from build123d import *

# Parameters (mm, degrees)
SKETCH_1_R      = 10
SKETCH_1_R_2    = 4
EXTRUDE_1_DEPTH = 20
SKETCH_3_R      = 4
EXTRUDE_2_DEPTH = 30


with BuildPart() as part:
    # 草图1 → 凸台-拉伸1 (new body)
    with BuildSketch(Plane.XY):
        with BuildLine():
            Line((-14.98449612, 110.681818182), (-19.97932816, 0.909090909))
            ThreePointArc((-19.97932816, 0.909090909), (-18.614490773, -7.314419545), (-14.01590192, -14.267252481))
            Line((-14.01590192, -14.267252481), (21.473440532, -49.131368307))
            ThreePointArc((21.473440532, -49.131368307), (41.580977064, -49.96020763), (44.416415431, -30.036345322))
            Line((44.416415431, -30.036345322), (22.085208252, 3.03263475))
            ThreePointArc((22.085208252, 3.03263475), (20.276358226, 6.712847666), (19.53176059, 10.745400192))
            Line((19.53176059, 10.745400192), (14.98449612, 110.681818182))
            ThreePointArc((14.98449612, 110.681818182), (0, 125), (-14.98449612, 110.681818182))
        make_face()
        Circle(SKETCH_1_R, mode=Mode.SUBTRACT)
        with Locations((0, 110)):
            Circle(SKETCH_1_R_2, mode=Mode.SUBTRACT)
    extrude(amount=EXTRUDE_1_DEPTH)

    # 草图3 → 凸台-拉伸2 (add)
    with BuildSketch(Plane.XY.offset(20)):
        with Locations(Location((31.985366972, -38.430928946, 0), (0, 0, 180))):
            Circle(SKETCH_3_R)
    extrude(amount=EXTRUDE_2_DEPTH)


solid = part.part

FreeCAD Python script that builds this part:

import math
import FreeCAD as App
import Part
import Sketcher

doc = App.newDocument("Part")
body = doc.addObject("PartDesign::Body", "Body")

# Sketch on XY plane
sketch1 = doc.addObject("Sketcher::SketchObject", "Sketch")
body.addObject(sketch1)
sketch1.AttachmentSupport = (doc.XY_Plane, [""])
sketch1.MapMode = "FlatFace"
sketch1.addGeometry([
    Part.LineSegment(App.Vector(-15, 110.7, 0), App.Vector(-20, 0.9, 0)),  # 0
    Part.ArcOfCircle(Part.Circle(App.Vector(0, 0, 0), App.Vector(0, 0, 1), 20), math.radians(177), math.radians(226)),  # 1
    Part.LineSegment(App.Vector(-14, -14.3, 0), App.Vector(21.5, -49.1, 0)),  # 2
    Part.ArcOfCircle(Part.Circle(App.Vector(32, -38.4, 0), App.Vector(0, 0, 1), 15), math.radians(-134), math.radians(34)),  # 3
    Part.LineSegment(App.Vector(44.4, -30, 0), App.Vector(22.1, 3, 0)),  # 4
    Part.ArcOfCircle(Part.Circle(App.Vector(34.5, 11.4, 0), App.Vector(0, 0, 1), 15), math.radians(-177), math.radians(-146)),  # 5
    Part.LineSegment(App.Vector(19.5, 10.7, 0), App.Vector(15, 110.7, 0)),  # 6
    Part.ArcOfCircle(Part.Circle(App.Vector(0, 110, 0), App.Vector(0, 0, 1), 15), math.radians(3), math.radians(177)),  # 7
    Part.Circle(App.Vector(0, 0, 0), App.Vector(0, 0, 1), 10),  # 8
    Part.Circle(App.Vector(0, 110, 0), App.Vector(0, 0, 1), 4),  # 9
], False)
sketch1.addConstraint([
    Sketcher.Constraint("Tangent", 0, 2, 1, 1),
    Sketcher.Constraint("Tangent", 1, 2, 2, 1),
    Sketcher.Constraint("Tangent", 2, 2, 3, 1),
    Sketcher.Constraint("Tangent", 3, 2, 4, 1),
    Sketcher.Constraint("Tangent", 4, 2, 5, 2),
    Sketcher.Constraint("Tangent", 5, 1, 6, 1),
    Sketcher.Constraint("Tangent", 6, 2, 7, 1),
    Sketcher.Constraint("Tangent", 7, 2, 0, 1),
    Sketcher.Constraint("Coincident", 1, 3, -1, 1),
    Sketcher.Constraint("Coincident", 8, 3, -1, 1),
    Sketcher.Constraint("Coincident", 9, 3, 7, 3),
    Sketcher.Constraint("Equal", 3, 5),
    Sketcher.Constraint("Equal", 5, 7),
    Sketcher.Constraint("Symmetric", 6, 2, 7, 2, -2),
    Sketcher.Constraint("Diameter", 8, 20.0),
    Sketcher.Constraint("Diameter", 9, 8.0),
    Sketcher.Constraint("Radius", 1, 20.0),
    Sketcher.Constraint("Radius", 3, 15.0),
    Sketcher.Constraint("DistanceY", -1, 1, 7, 3, 110.0),
    Sketcher.Constraint("DistanceX", 1, 2, -1, 1, 14.015902),
    Sketcher.Constraint("DistanceY", -1, 1, 5, 1, 10.7454),
    Sketcher.Constraint("Distance", 2, 49.749372),
])
pad1 = doc.addObject("PartDesign::Pad", "Pad")
body.addObject(pad1)
pad1.Profile = sketch1
pad1.Length = 20

# Sketch on XY plane
sketch2 = doc.addObject("Sketcher::SketchObject", "Sketch001")
body.addObject(sketch2)
sketch2.AttachmentSupport = (doc.XY_Plane, [""])
sketch2.MapMode = "FlatFace"
sketch2.AttachmentOffset = App.Placement(App.Vector(0, 0, 20), App.Rotation())
sketch2.addGeometry(Part.Circle(App.Vector(32, -38.4, 0), App.Vector(0, 0, 1), 4), False)
sketch2.addConstraint([
    Sketcher.Constraint("Diameter", 0, 8.0),
    Sketcher.Constraint("DistanceY", 0, 3, -1, 1, 38.430929),
    Sketcher.Constraint("DistanceX", -1, 1, 0, 3, 31.985367),
])
pad2 = doc.addObject("PartDesign::Pad", "Pad001")
body.addObject(pad2)
pad2.Profile = sketch2
pad2.Length = 30

doc.recompute()
